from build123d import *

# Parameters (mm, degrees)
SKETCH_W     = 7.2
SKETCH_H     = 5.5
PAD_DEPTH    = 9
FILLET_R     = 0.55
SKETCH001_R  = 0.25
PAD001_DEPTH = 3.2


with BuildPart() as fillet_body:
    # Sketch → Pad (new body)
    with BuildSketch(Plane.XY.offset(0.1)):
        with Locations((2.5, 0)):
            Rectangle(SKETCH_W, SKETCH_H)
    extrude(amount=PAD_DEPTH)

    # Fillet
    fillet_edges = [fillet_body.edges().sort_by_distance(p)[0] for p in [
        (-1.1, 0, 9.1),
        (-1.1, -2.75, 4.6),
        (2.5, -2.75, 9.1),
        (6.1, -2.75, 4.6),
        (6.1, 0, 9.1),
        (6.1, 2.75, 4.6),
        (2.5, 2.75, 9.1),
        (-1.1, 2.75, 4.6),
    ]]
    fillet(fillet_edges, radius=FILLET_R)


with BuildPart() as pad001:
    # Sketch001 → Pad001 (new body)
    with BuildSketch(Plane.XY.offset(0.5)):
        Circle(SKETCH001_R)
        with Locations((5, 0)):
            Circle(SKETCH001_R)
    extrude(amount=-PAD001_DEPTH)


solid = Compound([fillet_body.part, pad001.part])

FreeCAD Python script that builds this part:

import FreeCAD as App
import Part
import Sketcher

V = App.Vector


def edges_at(feature, points):
    """Names of the edges that pass closest to the given points."""
    edges = feature.Shape.Edges
    near = lambda p: min(range(len(edges)), key=lambda i: edges[i].distToShape(Part.Vertex(*p))[0])
    return sorted({f"Edge{near(p) + 1}" for p in points})


def add_polygon(sketch, points):
    """Adds a closed chain of lines whose ends are joined by coincident constraints."""
    first, n = sketch.GeometryCount, len(points)
    for a, b in zip(points, points[1:] + points[:1]):
        sketch.addGeometry(Part.LineSegment(App.Vector(*a, 0), App.Vector(*b, 0)), False)
    for i in range(n):
        sketch.addConstraint(Sketcher.Constraint("Coincident", first + i, 2, first + (i + 1) % n, 1))

doc = App.newDocument("Part")
body = doc.addObject("PartDesign::Body", "Body")

# Sketch on XY plane
sketch1 = body.newObject("Sketcher::SketchObject", "Sketch")
sketch1.AttachmentSupport = (doc.getObject("XY_Plane"), [""])
sketch1.MapMode = "FlatFace"
sketch1.AttachmentOffset = App.Placement(V(0, 0, 0.1), App.Rotation())
add_polygon(sketch1, [(-1, 3), (-1, -3), (6, -3), (6, 3)])  # lines 0-3
sketch1.addConstraint(Sketcher.Constraint("Vertical", 0))
sketch1.addConstraint(Sketcher.Constraint("Horizontal", 1))
sketch1.addConstraint(Sketcher.Constraint("Vertical", 2))
sketch1.addConstraint(Sketcher.Constraint("Horizontal", 3))
sketch1.addConstraint(Sketcher.Constraint("DistanceX", 1, 1, 1, 2, 7.2))
sketch1.addConstraint(Sketcher.Constraint("DistanceY", 0, 2, 0, 1, 5.5))
sketch1.addConstraint(Sketcher.Constraint("DistanceX", 0, 2, -1, 1, 1.1))
sketch1.addConstraint(Sketcher.Constraint("DistanceY", 0, 2, -1, 1, 2.75))
pad1 = body.newObject("PartDesign::Pad", "Pad")
pad1.Profile = sketch1
pad1.Length = 9
doc.recompute()

fillet = body.newObject("PartDesign::Fillet", "Fillet")
fillet.Base = (pad1, edges_at(pad1, [
    (-1.1, 0, 9.1),
    (-1.1, -2.75, 4.6),
    (2.5, -2.75, 9.1),
    (6.1, -2.75, 4.6),
    (6.1, 0, 9.1),
    (6.1, 2.75, 4.6),
    (2.5, 2.75, 9.1),
    (-1.1, 2.75, 4.6),
]))
fillet.Radius = 0.55
body2 = doc.addObject("PartDesign::Body", "Body001")
body2.AllowCompound = True

# Sketch on XY plane
sketch2 = body2.newObject("Sketcher::SketchObject", "Sketch001")
sketch2.AttachmentSupport = (doc.getObject("XY_Plane001"), [""])
sketch2.MapMode = "FlatFace"
sketch2.AttachmentOffset = App.Placement(V(0, 0, 0.5), App.Rotation())
sketch2.addGeometry(Part.Circle(V(0, 0, 0), V(0, 0, 1), 0.25), False)
sketch2.addGeometry(Part.Circle(V(5, 0, 0), V(0, 0, 1), 0.25), False)
sketch2.addConstraint(Sketcher.Constraint("Coincident", 0, 3, -1, 1))
sketch2.addConstraint(Sketcher.Constraint("Equal", 0, 1))
sketch2.addConstraint(Sketcher.Constraint("PointOnObject", 1, 3, -1))
sketch2.addConstraint(Sketcher.Constraint("Diameter", 0, 0.5))
sketch2.addConstraint(Sketcher.Constraint("DistanceX", -1, 1, 1, 3, 5.0))
pad2 = body2.newObject("PartDesign::Pad", "Pad001")
pad2.Profile = sketch2
pad2.Length = 3.2
pad2.Reversed = True

doc.recompute()
